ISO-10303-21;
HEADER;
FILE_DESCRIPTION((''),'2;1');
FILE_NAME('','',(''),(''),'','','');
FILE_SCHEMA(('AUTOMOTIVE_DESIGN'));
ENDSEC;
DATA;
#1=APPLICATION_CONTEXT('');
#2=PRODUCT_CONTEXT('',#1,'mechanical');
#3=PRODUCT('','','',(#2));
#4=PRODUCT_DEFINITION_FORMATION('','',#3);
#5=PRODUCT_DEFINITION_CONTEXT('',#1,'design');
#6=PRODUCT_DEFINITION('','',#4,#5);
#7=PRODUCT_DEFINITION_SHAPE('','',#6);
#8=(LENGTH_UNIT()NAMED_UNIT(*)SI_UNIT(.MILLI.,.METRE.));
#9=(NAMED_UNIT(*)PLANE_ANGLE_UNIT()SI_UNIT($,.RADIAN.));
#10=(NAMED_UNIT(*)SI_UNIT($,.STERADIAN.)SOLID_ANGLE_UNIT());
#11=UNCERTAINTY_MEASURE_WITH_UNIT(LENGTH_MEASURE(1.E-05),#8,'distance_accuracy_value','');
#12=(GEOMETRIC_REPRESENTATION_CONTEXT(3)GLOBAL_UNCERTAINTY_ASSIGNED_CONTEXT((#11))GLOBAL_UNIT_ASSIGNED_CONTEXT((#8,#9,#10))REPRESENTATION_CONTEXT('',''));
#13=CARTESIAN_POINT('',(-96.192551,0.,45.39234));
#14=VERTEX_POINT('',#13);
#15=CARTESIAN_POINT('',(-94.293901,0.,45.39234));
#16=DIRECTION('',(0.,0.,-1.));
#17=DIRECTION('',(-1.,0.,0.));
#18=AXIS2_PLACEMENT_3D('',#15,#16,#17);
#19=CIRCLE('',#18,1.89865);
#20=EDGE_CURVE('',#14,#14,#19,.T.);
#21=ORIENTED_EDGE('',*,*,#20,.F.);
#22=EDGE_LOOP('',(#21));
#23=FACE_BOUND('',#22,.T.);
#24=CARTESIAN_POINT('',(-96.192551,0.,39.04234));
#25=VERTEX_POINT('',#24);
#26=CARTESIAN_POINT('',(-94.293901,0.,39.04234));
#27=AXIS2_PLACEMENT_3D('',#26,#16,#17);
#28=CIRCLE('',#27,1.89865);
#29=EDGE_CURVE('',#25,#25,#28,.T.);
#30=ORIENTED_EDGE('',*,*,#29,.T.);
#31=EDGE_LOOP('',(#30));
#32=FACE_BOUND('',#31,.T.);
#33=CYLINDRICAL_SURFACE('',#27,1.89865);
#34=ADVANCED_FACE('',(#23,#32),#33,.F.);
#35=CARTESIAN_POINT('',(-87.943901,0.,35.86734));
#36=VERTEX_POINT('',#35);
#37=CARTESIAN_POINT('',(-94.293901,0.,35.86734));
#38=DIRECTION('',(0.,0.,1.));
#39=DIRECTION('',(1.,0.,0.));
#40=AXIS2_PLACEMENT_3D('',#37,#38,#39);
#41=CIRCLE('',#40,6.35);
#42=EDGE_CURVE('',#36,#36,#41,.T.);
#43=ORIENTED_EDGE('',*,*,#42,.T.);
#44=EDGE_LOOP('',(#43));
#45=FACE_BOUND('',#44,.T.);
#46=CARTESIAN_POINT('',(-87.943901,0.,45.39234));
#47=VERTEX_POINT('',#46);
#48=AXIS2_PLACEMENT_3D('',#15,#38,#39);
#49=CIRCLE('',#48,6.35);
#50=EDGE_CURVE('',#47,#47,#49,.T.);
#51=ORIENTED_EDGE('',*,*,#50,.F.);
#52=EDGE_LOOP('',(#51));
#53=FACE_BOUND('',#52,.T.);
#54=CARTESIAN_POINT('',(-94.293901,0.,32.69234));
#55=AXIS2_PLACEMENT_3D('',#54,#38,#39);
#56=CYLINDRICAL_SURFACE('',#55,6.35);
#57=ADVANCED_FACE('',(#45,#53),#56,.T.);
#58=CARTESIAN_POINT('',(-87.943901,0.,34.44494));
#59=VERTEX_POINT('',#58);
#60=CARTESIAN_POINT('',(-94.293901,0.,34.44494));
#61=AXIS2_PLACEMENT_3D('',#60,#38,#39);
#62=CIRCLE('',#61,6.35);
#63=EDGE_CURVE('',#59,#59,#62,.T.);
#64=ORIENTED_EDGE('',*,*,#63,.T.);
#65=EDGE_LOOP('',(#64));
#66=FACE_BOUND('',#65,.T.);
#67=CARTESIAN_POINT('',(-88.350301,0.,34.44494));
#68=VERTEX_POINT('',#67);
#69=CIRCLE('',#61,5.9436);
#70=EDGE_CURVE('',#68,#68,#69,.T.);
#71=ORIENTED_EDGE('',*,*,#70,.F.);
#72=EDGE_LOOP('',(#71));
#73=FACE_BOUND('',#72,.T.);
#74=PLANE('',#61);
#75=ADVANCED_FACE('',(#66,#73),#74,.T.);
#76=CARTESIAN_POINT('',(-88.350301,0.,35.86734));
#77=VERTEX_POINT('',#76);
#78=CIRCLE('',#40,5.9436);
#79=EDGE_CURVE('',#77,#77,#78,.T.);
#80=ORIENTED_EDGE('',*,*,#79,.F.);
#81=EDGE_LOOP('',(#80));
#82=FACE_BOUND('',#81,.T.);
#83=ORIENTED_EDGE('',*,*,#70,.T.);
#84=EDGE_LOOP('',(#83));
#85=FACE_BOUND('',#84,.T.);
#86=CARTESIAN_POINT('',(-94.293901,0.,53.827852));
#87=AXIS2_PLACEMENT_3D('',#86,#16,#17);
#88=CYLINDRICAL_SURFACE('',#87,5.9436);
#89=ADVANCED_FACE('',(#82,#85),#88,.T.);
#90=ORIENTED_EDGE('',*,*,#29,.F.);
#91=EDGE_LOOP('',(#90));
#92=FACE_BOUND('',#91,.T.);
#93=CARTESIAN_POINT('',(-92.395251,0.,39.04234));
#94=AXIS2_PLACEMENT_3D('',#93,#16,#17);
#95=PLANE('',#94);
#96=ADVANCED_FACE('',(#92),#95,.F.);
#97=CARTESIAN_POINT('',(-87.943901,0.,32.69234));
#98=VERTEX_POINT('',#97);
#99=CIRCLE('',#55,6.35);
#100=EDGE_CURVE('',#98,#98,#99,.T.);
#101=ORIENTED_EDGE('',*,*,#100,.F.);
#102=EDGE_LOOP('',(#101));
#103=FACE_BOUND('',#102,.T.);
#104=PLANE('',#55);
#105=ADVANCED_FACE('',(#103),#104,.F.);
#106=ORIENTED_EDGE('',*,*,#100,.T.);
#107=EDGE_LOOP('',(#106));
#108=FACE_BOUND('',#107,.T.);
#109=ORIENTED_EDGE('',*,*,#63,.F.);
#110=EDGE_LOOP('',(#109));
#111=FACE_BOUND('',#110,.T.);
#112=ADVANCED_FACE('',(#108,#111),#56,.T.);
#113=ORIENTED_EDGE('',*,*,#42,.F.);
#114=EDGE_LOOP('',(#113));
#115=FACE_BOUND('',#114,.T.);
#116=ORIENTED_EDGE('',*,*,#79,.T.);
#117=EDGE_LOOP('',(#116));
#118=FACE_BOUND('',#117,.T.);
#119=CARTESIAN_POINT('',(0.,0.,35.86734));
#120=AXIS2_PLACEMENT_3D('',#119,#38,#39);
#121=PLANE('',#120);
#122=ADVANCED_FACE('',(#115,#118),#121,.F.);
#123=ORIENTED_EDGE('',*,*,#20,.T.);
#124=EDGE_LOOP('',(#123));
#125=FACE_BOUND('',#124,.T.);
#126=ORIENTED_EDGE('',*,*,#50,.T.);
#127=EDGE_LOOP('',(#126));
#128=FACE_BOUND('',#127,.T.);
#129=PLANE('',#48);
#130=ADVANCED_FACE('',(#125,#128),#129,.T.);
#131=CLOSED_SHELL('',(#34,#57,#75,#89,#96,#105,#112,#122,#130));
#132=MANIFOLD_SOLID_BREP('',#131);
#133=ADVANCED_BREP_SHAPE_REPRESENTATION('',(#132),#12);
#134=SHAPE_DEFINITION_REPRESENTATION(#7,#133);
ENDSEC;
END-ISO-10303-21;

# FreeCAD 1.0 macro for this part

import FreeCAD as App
import Part
import Sketcher

V = App.Vector
Q = App.Units.Quantity


def add_polygon(sketch, points):
    """Adds a closed chain of lines whose ends are joined by coincident constraints."""
    first, n = sketch.GeometryCount, len(points)
    for a, b in zip(points, points[1:] + points[:1]):
        sketch.addGeometry(Part.LineSegment(App.Vector(*a, 0), App.Vector(*b, 0)), False)
    for i in range(n):
        sketch.addConstraint(Sketcher.Constraint("Coincident", first + i, 2, first + (i + 1) % n, 1))

doc = App.newDocument("Part")
body = doc.addObject("PartDesign::Body", "Body")

sketch1 = body.newObject("Sketcher::SketchObject", "Sketch")
sketch1.AttachmentSupport = (doc.getObject("XY_Plane"), [""])
sketch1.MapMode = "FlatFace"
sketch1.AttachmentOffset = App.Placement(V(0, 0, 1.5371 * 25.4), App.Rotation())
sketch1.addGeometry(Part.Circle(V(-94, 0, 0), V(0, 0, 1), 6), False)
sketch1.addConstraint([
    Sketcher.Constraint("PointOnObject", 0, 3, -1),
    Sketcher.Constraint("Diameter", 0, Q("0.5 in")),
    Sketcher.Constraint("DistanceX", 0, 3, -1, 1, 94.293901),
])
pad1 = body.newObject("PartDesign::Pad", "Pad")
pad1.Profile = sketch1
pad1.Type = "TwoLengths"
pad1.Length = Q("0.25 in")
pad1.Length2 = Q("0.25 in")

sketch2 = body.newObject("Sketcher::SketchObject", "Sketch001")
sketch2.AttachmentSupport = (doc.getObject("XY_Plane"), [""])
sketch2.MapMode = "FlatFace"
sketch2.AttachmentOffset = App.Placement(V(0, 0, 1.3561 * 25.4), App.Rotation())
sketch2.addGeometry([
    Part.Circle(V(-94, 0, 0), V(0, 0, 1), 6),
    Part.Circle(V(-94, 0, 0), V(0, 0, 1), 6),
], False)
sketch2.addConstraint([
    Sketcher.Constraint("Coincident", 1, 3, 0, 3),
    Sketcher.Constraint("PointOnObject", 0, 3, -1),
    Sketcher.Constraint("Diameter", 0, Q("0.5 in")),
    Sketcher.Constraint("Diameter", 1, Q("0.468 in")),
    Sketcher.Constraint("DistanceX", 0, 3, -1, 1, 94.293901),
])
pocket1 = body.newObject("PartDesign::Pocket", "Pocket")
pocket1.Profile = sketch2
pocket1.Length = Q("0.056 in")
pocket1.Reversed = True

sketch3 = body.newObject("Sketcher::SketchObject", "Sketch002")
sketch3.AttachmentSupport = (doc.getObject("YZ_Plane"), [""])
sketch3.MapMode = "FlatFace"
sketch3.AttachmentOffset = App.Placement(V(0, 0, -94.293901), App.Rotation())
add_polygon(sketch3, [(0, 45.4), (0, 39), (1.9, 39), (1.9, 45.4)])
sketch3.addConstraint([
    Sketcher.Constraint("Vertical", 0),
    Sketcher.Constraint("Horizontal", 1),
    Sketcher.Constraint("Vertical", 2),
    Sketcher.Constraint("Horizontal", 3),
    Sketcher.Constraint("PointOnObject", 0, 2, -2),
    Sketcher.Constraint("DistanceY", 0, 2, 0, 1, Q("0.25 in")),
    Sketcher.Constraint("DistanceY", -1, 1, 0, 2, Q("1.5371 in")),
    Sketcher.Constraint("DistanceX", 1, 1, 1, 2, 1.89865),
])
groove = body.newObject("PartDesign::Groove", "Groove")
groove.Profile = sketch3
groove.ReferenceAxis = (sketch3, ["V_Axis"])
groove.Angle = 360

doc.recompute()
